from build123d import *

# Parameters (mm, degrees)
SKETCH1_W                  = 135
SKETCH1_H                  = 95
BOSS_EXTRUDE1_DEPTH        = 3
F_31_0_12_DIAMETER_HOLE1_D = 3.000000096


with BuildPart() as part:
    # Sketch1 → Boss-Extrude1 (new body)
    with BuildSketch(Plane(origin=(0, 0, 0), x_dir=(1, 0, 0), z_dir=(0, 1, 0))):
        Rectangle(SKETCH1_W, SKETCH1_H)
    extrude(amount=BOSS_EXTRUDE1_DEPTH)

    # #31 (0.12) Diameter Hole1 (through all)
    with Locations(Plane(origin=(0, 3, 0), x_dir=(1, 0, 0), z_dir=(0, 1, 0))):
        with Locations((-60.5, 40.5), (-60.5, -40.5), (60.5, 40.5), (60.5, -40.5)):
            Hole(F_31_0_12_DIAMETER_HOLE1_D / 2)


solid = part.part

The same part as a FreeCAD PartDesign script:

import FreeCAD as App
import Part
import Sketcher
from FreeCAD import Vector
Q = App.Units.Quantity

doc = App.newDocument("Part")
body = doc.addObject("PartDesign::Body", "Body")

sketch1 = body.newObject("Sketcher::SketchObject", "Sketch")
sketch1.AttachmentSupport = (doc.getObject("XZ_Plane"), [""])
sketch1.MapMode = "FlatFace"
sketch1.addGeometry([
    Part.LineSegment(Vector(-68, -48, 0), Vector(-68, 48, 0)),
    Part.LineSegment(Vector(-68, 48, 0), Vector(68, 48, 0)),
    Part.LineSegment(Vector(68, 48, 0), Vector(68, -48, 0)),
    Part.LineSegment(Vector(68, -48, 0), Vector(-68, -48, 0)),
], False)
sketch1.addConstraint([
    Sketcher.Constraint("Coincident", 0, 2, 1, 1),
    Sketcher.Constraint("Coincident", 1, 2, 2, 1),
    Sketcher.Constraint("Coincident", 2, 2, 3, 1),
    Sketcher.Constraint("Coincident", 3, 2, 0, 1),
    Sketcher.Constraint("Vertical", 0),
    Sketcher.Constraint("Horizontal", 1),
    Sketcher.Constraint("Vertical", 2),
    Sketcher.Constraint("Horizontal", 3),
    Sketcher.Constraint("Symmetric", 0, 2, 2, 2, -1, 1),
    Sketcher.Constraint("DistanceX", 1, 1, 1, 2, Q("135 mm")),
    Sketcher.Constraint("DistanceY", 0, 1, 0, 2, Q("95 mm")),
])
pad1 = body.newObject("PartDesign::Pad", "Pad")
pad1.Profile = sketch1
pad1.Length = 3
pad1.Reversed = True

sketch2 = body.newObject("Sketcher::SketchObject", "Sketch001")
sketch2.AttachmentSupport = (doc.getObject("XZ_Plane"), [""])
sketch2.MapMode = "FlatFace"
sketch2.AttachmentOffset = App.Placement(Vector(0, 0, -3), App.Rotation())
sketch2.addGeometry([
    Part.Circle(Vector(-60.5, -40.5, 0), Vector(0, 0, 1), 1.5),
    Part.Circle(Vector(-60.5, 40.5, 0), Vector(0, 0, 1), 1.5),
    Part.Circle(Vector(60.5, -40.5, 0), Vector(0, 0, 1), 1.5),
    Part.Circle(Vector(60.5, 40.5, 0), Vector(0, 0, 1), 1.5),
], False)
sketch2.addConstraint([
    Sketcher.Constraint("Equal", 0, 1),
    Sketcher.Constraint("Equal", 1, 2),
    Sketcher.Constraint("Equal", 2, 3),
    Sketcher.Constraint("Symmetric", 1, 3, 2, 3, -1, 1),
    Sketcher.Constraint("Symmetric", 0, 3, 3, 3, -1, 1),
    Sketcher.Constraint("Symmetric", 0, 3, 2, 3, -2),
    Sketcher.Constraint("Diameter", 0, Q("3 mm")),
    Sketcher.Constraint("DistanceY", 0, 3, 1, 3, Q("81 mm")),
    Sketcher.Constraint("DistanceX", 0, 3, 2, 3, Q("121 mm")),
])
doc.recompute()
hole = body.newObject("PartDesign::Hole", "Hole")
hole.Profile = sketch2
hole.ThreadType = "None"
hole.Diameter = 3
hole.DepthType = "ThroughAll"
hole.Reversed = True

doc.recompute()
